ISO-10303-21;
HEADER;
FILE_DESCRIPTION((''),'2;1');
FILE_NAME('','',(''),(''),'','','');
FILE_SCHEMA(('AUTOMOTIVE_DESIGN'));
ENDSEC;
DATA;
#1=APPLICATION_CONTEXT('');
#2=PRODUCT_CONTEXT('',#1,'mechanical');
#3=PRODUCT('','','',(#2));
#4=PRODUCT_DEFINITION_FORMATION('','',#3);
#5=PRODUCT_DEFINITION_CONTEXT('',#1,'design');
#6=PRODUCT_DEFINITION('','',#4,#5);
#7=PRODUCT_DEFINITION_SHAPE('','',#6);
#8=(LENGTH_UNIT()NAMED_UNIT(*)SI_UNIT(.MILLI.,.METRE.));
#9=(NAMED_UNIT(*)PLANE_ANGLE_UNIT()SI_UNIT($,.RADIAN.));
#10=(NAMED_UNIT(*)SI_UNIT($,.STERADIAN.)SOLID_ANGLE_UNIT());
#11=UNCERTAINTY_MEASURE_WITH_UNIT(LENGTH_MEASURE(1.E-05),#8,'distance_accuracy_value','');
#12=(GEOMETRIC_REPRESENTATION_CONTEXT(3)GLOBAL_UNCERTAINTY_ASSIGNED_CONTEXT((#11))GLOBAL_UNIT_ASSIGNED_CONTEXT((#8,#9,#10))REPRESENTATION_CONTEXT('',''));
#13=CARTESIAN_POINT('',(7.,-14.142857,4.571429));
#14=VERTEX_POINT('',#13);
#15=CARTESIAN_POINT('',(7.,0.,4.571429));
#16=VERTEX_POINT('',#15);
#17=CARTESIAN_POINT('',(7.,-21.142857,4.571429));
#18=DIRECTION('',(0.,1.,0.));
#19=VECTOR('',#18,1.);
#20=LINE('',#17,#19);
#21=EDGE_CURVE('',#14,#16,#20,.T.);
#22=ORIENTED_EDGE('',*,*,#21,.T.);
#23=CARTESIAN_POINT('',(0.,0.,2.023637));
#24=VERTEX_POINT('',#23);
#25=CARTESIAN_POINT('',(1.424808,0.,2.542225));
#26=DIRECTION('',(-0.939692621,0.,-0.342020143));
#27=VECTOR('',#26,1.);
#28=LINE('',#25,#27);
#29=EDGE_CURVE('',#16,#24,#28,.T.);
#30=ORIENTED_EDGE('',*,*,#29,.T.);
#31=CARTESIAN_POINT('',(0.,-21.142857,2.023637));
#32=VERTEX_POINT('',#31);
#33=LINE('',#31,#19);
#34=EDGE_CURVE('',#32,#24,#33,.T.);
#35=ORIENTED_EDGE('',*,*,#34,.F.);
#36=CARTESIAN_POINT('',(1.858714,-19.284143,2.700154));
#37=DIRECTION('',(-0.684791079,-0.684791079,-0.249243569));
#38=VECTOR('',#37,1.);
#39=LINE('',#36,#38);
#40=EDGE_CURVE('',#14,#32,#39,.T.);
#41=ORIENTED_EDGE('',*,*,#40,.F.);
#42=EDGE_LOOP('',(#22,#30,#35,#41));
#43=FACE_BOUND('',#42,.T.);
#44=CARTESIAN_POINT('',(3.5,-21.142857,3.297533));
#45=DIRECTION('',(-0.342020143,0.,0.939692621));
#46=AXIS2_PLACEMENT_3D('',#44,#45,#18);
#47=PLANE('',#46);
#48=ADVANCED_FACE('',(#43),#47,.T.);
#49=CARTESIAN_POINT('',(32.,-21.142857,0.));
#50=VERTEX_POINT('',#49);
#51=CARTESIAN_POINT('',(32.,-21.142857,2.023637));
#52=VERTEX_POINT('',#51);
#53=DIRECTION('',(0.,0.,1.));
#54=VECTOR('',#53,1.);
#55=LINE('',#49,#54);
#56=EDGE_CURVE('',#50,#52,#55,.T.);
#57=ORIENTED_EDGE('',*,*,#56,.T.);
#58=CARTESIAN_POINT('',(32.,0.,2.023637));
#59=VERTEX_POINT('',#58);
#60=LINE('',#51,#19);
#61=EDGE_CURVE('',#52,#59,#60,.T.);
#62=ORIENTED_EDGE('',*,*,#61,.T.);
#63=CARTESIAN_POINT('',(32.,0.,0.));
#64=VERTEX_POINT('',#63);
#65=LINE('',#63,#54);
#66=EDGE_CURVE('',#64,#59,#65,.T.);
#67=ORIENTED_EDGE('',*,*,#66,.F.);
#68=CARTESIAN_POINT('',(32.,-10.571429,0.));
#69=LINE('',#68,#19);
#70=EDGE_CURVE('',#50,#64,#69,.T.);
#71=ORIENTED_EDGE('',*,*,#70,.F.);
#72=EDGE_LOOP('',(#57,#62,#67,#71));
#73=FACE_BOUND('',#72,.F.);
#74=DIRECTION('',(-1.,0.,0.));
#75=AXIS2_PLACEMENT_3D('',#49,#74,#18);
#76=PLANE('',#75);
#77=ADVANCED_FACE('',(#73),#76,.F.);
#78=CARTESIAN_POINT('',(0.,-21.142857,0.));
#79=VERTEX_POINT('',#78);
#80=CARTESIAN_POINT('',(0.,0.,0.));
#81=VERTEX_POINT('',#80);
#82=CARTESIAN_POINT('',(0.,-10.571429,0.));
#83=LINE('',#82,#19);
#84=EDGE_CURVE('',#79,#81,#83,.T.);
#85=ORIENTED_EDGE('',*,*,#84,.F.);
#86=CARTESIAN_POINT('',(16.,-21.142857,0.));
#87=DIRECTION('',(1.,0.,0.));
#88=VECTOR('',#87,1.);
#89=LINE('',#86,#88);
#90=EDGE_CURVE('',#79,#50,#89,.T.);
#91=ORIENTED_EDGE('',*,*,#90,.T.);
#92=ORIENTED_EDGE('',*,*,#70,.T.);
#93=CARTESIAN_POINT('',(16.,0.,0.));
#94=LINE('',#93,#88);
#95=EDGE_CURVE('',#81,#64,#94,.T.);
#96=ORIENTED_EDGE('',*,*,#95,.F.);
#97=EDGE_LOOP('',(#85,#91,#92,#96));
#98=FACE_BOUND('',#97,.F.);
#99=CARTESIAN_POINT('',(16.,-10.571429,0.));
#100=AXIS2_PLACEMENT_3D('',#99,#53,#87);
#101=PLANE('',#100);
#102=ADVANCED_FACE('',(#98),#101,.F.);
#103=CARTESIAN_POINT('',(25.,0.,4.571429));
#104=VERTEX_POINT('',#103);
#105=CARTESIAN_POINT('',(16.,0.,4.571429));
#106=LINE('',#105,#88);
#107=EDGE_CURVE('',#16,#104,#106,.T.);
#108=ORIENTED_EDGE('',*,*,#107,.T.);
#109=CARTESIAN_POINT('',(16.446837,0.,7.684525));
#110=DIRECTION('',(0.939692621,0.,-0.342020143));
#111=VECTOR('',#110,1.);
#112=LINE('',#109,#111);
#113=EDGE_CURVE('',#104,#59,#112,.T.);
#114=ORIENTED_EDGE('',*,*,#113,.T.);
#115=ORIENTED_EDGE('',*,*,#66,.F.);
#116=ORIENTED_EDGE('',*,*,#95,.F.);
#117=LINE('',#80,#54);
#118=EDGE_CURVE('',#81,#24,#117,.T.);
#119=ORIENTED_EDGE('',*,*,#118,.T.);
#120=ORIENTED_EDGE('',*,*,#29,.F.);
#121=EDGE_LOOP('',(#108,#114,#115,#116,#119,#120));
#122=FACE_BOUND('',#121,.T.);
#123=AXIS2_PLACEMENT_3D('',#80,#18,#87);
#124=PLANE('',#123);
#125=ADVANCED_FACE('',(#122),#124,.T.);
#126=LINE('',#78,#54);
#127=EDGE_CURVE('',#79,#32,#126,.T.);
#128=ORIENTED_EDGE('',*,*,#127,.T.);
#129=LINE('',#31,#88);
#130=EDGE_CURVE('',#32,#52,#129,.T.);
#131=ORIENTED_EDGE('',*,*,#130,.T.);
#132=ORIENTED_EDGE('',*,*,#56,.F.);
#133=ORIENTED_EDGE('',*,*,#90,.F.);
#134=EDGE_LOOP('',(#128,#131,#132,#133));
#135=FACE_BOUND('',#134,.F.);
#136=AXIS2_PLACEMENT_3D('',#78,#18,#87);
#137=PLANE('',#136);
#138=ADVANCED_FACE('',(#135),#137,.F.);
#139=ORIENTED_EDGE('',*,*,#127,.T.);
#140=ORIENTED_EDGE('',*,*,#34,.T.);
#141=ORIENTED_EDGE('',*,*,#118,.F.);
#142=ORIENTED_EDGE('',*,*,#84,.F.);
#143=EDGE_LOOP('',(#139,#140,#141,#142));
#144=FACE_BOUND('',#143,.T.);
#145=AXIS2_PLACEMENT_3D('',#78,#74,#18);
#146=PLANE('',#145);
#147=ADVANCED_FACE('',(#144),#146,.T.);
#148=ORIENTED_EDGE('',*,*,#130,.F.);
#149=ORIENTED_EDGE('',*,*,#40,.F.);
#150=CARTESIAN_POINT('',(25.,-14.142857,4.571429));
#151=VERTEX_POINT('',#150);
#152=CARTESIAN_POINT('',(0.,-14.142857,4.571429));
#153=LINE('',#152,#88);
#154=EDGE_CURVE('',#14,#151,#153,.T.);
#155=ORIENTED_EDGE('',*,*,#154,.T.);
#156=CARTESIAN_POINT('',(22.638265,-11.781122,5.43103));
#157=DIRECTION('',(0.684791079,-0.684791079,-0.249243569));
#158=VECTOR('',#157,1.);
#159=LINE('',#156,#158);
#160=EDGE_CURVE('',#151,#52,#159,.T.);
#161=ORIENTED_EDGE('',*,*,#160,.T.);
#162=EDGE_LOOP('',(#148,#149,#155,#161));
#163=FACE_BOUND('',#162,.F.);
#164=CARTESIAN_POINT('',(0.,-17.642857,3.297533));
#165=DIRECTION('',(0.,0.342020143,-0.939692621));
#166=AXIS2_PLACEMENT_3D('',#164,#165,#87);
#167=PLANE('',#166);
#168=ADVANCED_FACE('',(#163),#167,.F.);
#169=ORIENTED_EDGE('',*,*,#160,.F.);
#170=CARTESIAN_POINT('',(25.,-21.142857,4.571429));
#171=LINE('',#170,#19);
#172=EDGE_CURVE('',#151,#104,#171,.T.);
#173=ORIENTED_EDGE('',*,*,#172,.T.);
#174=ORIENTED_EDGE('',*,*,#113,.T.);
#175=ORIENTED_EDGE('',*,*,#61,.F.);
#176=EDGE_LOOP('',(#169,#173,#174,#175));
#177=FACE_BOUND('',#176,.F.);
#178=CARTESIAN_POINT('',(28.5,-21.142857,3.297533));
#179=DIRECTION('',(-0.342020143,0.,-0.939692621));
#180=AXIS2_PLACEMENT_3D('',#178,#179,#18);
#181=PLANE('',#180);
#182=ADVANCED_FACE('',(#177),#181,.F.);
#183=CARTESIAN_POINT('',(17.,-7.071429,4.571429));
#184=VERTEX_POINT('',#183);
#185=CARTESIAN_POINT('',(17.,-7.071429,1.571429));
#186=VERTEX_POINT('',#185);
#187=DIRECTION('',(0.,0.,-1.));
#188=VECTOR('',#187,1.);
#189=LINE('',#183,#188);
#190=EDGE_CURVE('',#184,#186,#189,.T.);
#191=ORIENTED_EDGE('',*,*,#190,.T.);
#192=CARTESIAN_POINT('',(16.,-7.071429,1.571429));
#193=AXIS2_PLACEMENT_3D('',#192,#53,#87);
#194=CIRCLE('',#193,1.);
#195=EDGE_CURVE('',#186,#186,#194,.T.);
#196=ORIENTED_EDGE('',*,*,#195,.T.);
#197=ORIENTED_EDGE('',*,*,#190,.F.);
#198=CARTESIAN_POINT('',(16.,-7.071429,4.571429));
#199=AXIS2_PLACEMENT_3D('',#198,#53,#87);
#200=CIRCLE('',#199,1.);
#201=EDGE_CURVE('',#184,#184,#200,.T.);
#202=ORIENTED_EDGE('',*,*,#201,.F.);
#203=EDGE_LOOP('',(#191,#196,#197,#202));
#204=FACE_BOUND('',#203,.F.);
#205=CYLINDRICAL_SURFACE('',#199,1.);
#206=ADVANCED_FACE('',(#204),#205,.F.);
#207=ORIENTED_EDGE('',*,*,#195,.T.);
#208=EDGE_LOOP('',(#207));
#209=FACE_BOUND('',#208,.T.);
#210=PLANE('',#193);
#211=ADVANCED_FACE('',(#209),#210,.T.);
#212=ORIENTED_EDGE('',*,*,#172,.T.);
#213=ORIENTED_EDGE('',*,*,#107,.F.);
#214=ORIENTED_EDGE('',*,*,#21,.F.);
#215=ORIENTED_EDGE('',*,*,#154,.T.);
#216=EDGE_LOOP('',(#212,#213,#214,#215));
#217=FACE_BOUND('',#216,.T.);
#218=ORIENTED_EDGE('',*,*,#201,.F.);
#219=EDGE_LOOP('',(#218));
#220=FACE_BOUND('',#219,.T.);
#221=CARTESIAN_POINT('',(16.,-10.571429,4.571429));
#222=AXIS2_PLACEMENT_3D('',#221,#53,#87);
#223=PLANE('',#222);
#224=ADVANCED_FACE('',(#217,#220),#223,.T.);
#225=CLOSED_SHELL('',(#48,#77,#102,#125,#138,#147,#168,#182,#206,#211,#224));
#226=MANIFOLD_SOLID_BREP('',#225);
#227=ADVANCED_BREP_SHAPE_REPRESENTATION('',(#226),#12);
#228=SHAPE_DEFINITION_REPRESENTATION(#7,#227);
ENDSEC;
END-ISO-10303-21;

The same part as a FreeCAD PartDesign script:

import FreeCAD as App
import Part
import Sketcher
from FreeCAD import Vector


def edges_at(feature, points):
    """Names of the edges that pass closest to the given points."""
    edges = feature.Shape.Edges
    near = lambda p: min(range(len(edges)), key=lambda i: edges[i].distToShape(Part.Vertex(*p))[0])
    return sorted({f"Edge{near(p) + 1}" for p in points})

doc = App.newDocument("Part")
body = doc.addObject("PartDesign::Body", "Body")

# Sketch on XY plane
sketch1 = body.newObject("Sketcher::SketchObject", "Sketch")
sketch1.AttachmentSupport = (doc.getObject("XY_Plane"), [""])
sketch1.MapMode = "FlatFace"
sketch1.addGeometry([
    Part.LineSegment(Vector(0, 0, 0), Vector(0, -21.142857, 0)),
    Part.LineSegment(Vector(0, -21.142857, 0), Vector(32, -21.142857, 0)),
    Part.LineSegment(Vector(32, -21.142857, 0), Vector(32, 0, 0)),
    Part.LineSegment(Vector(32, 0, 0), Vector(0, 0, 0)),
], False)
sketch1.addConstraint([
    Sketcher.Constraint("Coincident", 0, 2, 1, 1),
    Sketcher.Constraint("Coincident", 1, 2, 2, 1),
    Sketcher.Constraint("Coincident", 2, 2, 3, 1),
    Sketcher.Constraint("Coincident", 3, 2, 0, 1),
    Sketcher.Constraint("Vertical", 0),
    Sketcher.Constraint("Horizontal", 1),
    Sketcher.Constraint("Vertical", 2),
    Sketcher.Constraint("Horizontal", 3),
    Sketcher.Constraint("Coincident", 3, 2, -1, 1),
    Sketcher.Constraint("DistanceX", 1, 1, 1, 2, 32.0),
    Sketcher.Constraint("DistanceY", 0, 2, 0, 1, 21.142857),
])
pad1 = body.newObject("PartDesign::Pad", "Pad")
pad1.Profile = sketch1
pad1.Length = 4.571429
doc.recompute()

chamfer = body.newObject("PartDesign::Chamfer", "Chamfer")
chamfer.Base = (pad1, edges_at(pad1, [(0, -10.571, 4.571), (16, -21.143, 4.571), (32, -10.571, 4.571)]))
chamfer.ChamferType = "Two distances"
chamfer.Size = 7
chamfer.Size2 = 2.547792
chamfer.FlipDirection = True

# Sketch on XY plane
sketch2 = body.newObject("Sketcher::SketchObject", "Sketch001")
sketch2.AttachmentSupport = (doc.getObject("XY_Plane"), [""])
sketch2.MapMode = "FlatFace"
sketch2.AttachmentOffset = App.Placement(Vector(0, 0, 4.571429), App.Rotation())
sketch2.addGeometry(Part.Circle(Vector(16, -7.071429, 0), Vector(0, 0, 1), 1), False)
sketch2.addConstraint([
    Sketcher.Constraint("Diameter", 0, 2.0),
    Sketcher.Constraint("DistanceX", -1, 1, 0, 3, 16.0),
    Sketcher.Constraint("DistanceY", 0, 3, -1, 1, 7.071429),
])
pocket1 = body.newObject("PartDesign::Pocket", "Pocket")
pocket1.Profile = sketch2
pocket1.Length = 3

doc.recompute()
